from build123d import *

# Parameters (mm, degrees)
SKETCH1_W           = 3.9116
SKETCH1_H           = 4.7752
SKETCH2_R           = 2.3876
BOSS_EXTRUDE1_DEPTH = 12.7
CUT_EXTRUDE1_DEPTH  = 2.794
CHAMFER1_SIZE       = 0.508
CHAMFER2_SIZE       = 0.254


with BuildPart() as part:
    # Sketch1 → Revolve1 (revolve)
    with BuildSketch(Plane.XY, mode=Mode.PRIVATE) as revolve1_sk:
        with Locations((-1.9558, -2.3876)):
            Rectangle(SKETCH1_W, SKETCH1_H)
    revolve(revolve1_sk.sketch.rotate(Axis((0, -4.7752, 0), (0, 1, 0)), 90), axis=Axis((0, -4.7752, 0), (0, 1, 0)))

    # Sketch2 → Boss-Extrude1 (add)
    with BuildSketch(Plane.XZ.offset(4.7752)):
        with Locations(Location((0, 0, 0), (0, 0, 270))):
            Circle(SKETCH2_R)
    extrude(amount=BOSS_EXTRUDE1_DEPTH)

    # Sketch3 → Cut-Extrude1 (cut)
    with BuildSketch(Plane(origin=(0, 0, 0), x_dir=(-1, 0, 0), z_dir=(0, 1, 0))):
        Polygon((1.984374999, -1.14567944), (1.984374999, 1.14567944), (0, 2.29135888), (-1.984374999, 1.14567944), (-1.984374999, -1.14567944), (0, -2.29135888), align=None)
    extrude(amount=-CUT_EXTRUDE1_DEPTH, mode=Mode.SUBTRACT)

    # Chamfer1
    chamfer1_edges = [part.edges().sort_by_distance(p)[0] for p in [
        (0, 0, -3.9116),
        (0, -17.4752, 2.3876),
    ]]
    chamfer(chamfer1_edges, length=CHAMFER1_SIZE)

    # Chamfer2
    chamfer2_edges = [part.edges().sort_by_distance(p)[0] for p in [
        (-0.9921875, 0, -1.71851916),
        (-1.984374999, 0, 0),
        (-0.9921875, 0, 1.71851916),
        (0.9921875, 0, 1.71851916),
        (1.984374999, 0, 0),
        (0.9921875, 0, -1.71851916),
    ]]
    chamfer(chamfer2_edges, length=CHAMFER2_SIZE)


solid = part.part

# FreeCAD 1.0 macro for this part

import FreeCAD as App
import Part
import Sketcher
Q = App.Units.Quantity


def edges_at(feature, points):
    """Names of the edges that pass closest to the given points."""
    edges = feature.Shape.Edges
    near = lambda p: min(range(len(edges)), key=lambda i: edges[i].distToShape(Part.Vertex(*p))[0])
    return sorted({f"Edge{near(p) + 1}" for p in points})

doc = App.newDocument("Part")
body = doc.addObject("PartDesign::Body", "Body")

# Sketch on XY plane
sketch1 = body.newObject("Sketcher::SketchObject", "Sketch")
sketch1.AttachmentSupport = (doc.getObject("XY_Plane"), [""])
sketch1.MapMode = "FlatFace"
sketch1.addGeometry([
    Part.LineSegment(App.Vector(-3.9, 0, 0), App.Vector(-3.9, -4.8, 0)),
    Part.LineSegment(App.Vector(-3.9, -4.8, 0), App.Vector(0, -4.8, 0)),
    Part.LineSegment(App.Vector(0, -4.8, 0), App.Vector(0, 0, 0)),
    Part.LineSegment(App.Vector(0, 0, 0), App.Vector(-3.9, 0, 0)),
], False)
sketch1.addConstraint([
    Sketcher.Constraint("Coincident", 0, 2, 1, 1),
    Sketcher.Constraint("Coincident", 1, 2, 2, 1),
    Sketcher.Constraint("Coincident", 2, 2, 3, 1),
    Sketcher.Constraint("Coincident", 3, 2, 0, 1),
    Sketcher.Constraint("Vertical", 0),
    Sketcher.Constraint("Horizontal", 1),
    Sketcher.Constraint("Vertical", 2),
    Sketcher.Constraint("Horizontal", 3),
    Sketcher.Constraint("Coincident", 2, 2, -1, 1),
    Sketcher.Constraint("DistanceX", 1, 1, 1, 2, Q("0.154 in")),
    Sketcher.Constraint("DistanceY", 0, 2, 0, 1, Q("0.188 in")),
])
revolution = body.newObject("PartDesign::Revolution", "Revolution")
revolution.Profile = sketch1
revolution.ReferenceAxis = (sketch1, ["V_Axis"])
revolution.Angle = 360

# Sketch on XZ plane
sketch2 = body.newObject("Sketcher::SketchObject", "Sketch001")
sketch2.AttachmentSupport = (doc.getObject("XZ_Plane"), [""])
sketch2.MapMode = "FlatFace"
sketch2.AttachmentOffset = App.Placement(App.Vector(0, 0, 0.188 * 25.4), App.Rotation())
sketch2.addGeometry(Part.Circle(App.Vector(0, 0, 0), App.Vector(0, 0, 1), 2.4), False)
sketch2.addConstraint([
    Sketcher.Constraint("Coincident", 0, 3, -1, 1),
    Sketcher.Constraint("Diameter", 0, Q("0.188 in")),
])
pad1 = body.newObject("PartDesign::Pad", "Pad")
pad1.Profile = sketch2
pad1.Length = Q("0.5 in")

# Sketch on XZ plane
sketch3 = body.newObject("Sketcher::SketchObject", "Sketch002")
sketch3.AttachmentSupport = (doc.getObject("XZ_Plane"), [""])
sketch3.MapMode = "FlatFace"
sketch3.addGeometry([
    Part.LineSegment(App.Vector(-2, -1.1, 0), App.Vector(-2, 1.1, 0)),  # 0
    Part.LineSegment(App.Vector(-2, 1.1, 0), App.Vector(0, 2.3, 0)),  # 1
    Part.LineSegment(App.Vector(0, 2.3, 0), App.Vector(2, 1.1, 0)),  # 2
    Part.LineSegment(App.Vector(2, 1.1, 0), App.Vector(2, -1.1, 0)),  # 3
    Part.LineSegment(App.Vector(2, -1.1, 0), App.Vector(0, -2.3, 0)),  # 4
    Part.LineSegment(App.Vector(0, -2.3, 0), App.Vector(-2, -1.1, 0)),  # 5
], False)
sketch3.addConstraint([
    Sketcher.Constraint("Coincident", 0, 2, 1, 1),
    Sketcher.Constraint("Coincident", 1, 2, 2, 1),
    Sketcher.Constraint("Coincident", 2, 2, 3, 1),
    Sketcher.Constraint("Coincident", 3, 2, 4, 1),
    Sketcher.Constraint("Coincident", 4, 2, 5, 1),
    Sketcher.Constraint("Coincident", 5, 2, 0, 1),
    Sketcher.Constraint("Vertical", 0),
    Sketcher.Constraint("Vertical", 3),
    Sketcher.Constraint("Symmetric", 0, 2, 3, 2, -1, 1),
    Sketcher.Constraint("Symmetric", 1, 2, 4, 2, -1, 1),
    Sketcher.Constraint("PointOnObject", 1, 2, -2),
    Sketcher.Constraint("Parallel", 2, 5),
    Sketcher.Constraint("Horizontal", 0, 2, 2, 2),
    Sketcher.Constraint("Angle", 1, Q("30 deg")),
    Sketcher.Constraint("DistanceX", 0, 2, -1, 1, Q("0.078125 in")),
    Sketcher.Constraint("DistanceY", 0, 1, 0, 2, 2.291359),
])
pocket1 = body.newObject("PartDesign::Pocket", "Pocket")
pocket1.Profile = sketch3
pocket1.Length = Q("0.11 in")
pocket1.Reversed = True
doc.recompute()

chamfer = body.newObject("PartDesign::Chamfer", "Chamfer")
chamfer.Base = (pocket1, edges_at(pocket1, [(0, 0, -3.912), (0, -17.475, 2.388)]))
chamfer.Size = Q("0.02 in")
doc.recompute()

chamfer2 = body.newObject("PartDesign::Chamfer", "Chamfer001")
chamfer2.Base = (chamfer, edges_at(chamfer, [
    (-0.992, 0, -1.719),
    (-1.984, 0, 0),
    (-0.992, 0, 1.719),
    (0.992, 0, 1.719),
    (1.984, 0, 0),
    (0.992, 0, -1.719),
]))
chamfer2.Size = Q("0.01 in")

doc.recompute()
